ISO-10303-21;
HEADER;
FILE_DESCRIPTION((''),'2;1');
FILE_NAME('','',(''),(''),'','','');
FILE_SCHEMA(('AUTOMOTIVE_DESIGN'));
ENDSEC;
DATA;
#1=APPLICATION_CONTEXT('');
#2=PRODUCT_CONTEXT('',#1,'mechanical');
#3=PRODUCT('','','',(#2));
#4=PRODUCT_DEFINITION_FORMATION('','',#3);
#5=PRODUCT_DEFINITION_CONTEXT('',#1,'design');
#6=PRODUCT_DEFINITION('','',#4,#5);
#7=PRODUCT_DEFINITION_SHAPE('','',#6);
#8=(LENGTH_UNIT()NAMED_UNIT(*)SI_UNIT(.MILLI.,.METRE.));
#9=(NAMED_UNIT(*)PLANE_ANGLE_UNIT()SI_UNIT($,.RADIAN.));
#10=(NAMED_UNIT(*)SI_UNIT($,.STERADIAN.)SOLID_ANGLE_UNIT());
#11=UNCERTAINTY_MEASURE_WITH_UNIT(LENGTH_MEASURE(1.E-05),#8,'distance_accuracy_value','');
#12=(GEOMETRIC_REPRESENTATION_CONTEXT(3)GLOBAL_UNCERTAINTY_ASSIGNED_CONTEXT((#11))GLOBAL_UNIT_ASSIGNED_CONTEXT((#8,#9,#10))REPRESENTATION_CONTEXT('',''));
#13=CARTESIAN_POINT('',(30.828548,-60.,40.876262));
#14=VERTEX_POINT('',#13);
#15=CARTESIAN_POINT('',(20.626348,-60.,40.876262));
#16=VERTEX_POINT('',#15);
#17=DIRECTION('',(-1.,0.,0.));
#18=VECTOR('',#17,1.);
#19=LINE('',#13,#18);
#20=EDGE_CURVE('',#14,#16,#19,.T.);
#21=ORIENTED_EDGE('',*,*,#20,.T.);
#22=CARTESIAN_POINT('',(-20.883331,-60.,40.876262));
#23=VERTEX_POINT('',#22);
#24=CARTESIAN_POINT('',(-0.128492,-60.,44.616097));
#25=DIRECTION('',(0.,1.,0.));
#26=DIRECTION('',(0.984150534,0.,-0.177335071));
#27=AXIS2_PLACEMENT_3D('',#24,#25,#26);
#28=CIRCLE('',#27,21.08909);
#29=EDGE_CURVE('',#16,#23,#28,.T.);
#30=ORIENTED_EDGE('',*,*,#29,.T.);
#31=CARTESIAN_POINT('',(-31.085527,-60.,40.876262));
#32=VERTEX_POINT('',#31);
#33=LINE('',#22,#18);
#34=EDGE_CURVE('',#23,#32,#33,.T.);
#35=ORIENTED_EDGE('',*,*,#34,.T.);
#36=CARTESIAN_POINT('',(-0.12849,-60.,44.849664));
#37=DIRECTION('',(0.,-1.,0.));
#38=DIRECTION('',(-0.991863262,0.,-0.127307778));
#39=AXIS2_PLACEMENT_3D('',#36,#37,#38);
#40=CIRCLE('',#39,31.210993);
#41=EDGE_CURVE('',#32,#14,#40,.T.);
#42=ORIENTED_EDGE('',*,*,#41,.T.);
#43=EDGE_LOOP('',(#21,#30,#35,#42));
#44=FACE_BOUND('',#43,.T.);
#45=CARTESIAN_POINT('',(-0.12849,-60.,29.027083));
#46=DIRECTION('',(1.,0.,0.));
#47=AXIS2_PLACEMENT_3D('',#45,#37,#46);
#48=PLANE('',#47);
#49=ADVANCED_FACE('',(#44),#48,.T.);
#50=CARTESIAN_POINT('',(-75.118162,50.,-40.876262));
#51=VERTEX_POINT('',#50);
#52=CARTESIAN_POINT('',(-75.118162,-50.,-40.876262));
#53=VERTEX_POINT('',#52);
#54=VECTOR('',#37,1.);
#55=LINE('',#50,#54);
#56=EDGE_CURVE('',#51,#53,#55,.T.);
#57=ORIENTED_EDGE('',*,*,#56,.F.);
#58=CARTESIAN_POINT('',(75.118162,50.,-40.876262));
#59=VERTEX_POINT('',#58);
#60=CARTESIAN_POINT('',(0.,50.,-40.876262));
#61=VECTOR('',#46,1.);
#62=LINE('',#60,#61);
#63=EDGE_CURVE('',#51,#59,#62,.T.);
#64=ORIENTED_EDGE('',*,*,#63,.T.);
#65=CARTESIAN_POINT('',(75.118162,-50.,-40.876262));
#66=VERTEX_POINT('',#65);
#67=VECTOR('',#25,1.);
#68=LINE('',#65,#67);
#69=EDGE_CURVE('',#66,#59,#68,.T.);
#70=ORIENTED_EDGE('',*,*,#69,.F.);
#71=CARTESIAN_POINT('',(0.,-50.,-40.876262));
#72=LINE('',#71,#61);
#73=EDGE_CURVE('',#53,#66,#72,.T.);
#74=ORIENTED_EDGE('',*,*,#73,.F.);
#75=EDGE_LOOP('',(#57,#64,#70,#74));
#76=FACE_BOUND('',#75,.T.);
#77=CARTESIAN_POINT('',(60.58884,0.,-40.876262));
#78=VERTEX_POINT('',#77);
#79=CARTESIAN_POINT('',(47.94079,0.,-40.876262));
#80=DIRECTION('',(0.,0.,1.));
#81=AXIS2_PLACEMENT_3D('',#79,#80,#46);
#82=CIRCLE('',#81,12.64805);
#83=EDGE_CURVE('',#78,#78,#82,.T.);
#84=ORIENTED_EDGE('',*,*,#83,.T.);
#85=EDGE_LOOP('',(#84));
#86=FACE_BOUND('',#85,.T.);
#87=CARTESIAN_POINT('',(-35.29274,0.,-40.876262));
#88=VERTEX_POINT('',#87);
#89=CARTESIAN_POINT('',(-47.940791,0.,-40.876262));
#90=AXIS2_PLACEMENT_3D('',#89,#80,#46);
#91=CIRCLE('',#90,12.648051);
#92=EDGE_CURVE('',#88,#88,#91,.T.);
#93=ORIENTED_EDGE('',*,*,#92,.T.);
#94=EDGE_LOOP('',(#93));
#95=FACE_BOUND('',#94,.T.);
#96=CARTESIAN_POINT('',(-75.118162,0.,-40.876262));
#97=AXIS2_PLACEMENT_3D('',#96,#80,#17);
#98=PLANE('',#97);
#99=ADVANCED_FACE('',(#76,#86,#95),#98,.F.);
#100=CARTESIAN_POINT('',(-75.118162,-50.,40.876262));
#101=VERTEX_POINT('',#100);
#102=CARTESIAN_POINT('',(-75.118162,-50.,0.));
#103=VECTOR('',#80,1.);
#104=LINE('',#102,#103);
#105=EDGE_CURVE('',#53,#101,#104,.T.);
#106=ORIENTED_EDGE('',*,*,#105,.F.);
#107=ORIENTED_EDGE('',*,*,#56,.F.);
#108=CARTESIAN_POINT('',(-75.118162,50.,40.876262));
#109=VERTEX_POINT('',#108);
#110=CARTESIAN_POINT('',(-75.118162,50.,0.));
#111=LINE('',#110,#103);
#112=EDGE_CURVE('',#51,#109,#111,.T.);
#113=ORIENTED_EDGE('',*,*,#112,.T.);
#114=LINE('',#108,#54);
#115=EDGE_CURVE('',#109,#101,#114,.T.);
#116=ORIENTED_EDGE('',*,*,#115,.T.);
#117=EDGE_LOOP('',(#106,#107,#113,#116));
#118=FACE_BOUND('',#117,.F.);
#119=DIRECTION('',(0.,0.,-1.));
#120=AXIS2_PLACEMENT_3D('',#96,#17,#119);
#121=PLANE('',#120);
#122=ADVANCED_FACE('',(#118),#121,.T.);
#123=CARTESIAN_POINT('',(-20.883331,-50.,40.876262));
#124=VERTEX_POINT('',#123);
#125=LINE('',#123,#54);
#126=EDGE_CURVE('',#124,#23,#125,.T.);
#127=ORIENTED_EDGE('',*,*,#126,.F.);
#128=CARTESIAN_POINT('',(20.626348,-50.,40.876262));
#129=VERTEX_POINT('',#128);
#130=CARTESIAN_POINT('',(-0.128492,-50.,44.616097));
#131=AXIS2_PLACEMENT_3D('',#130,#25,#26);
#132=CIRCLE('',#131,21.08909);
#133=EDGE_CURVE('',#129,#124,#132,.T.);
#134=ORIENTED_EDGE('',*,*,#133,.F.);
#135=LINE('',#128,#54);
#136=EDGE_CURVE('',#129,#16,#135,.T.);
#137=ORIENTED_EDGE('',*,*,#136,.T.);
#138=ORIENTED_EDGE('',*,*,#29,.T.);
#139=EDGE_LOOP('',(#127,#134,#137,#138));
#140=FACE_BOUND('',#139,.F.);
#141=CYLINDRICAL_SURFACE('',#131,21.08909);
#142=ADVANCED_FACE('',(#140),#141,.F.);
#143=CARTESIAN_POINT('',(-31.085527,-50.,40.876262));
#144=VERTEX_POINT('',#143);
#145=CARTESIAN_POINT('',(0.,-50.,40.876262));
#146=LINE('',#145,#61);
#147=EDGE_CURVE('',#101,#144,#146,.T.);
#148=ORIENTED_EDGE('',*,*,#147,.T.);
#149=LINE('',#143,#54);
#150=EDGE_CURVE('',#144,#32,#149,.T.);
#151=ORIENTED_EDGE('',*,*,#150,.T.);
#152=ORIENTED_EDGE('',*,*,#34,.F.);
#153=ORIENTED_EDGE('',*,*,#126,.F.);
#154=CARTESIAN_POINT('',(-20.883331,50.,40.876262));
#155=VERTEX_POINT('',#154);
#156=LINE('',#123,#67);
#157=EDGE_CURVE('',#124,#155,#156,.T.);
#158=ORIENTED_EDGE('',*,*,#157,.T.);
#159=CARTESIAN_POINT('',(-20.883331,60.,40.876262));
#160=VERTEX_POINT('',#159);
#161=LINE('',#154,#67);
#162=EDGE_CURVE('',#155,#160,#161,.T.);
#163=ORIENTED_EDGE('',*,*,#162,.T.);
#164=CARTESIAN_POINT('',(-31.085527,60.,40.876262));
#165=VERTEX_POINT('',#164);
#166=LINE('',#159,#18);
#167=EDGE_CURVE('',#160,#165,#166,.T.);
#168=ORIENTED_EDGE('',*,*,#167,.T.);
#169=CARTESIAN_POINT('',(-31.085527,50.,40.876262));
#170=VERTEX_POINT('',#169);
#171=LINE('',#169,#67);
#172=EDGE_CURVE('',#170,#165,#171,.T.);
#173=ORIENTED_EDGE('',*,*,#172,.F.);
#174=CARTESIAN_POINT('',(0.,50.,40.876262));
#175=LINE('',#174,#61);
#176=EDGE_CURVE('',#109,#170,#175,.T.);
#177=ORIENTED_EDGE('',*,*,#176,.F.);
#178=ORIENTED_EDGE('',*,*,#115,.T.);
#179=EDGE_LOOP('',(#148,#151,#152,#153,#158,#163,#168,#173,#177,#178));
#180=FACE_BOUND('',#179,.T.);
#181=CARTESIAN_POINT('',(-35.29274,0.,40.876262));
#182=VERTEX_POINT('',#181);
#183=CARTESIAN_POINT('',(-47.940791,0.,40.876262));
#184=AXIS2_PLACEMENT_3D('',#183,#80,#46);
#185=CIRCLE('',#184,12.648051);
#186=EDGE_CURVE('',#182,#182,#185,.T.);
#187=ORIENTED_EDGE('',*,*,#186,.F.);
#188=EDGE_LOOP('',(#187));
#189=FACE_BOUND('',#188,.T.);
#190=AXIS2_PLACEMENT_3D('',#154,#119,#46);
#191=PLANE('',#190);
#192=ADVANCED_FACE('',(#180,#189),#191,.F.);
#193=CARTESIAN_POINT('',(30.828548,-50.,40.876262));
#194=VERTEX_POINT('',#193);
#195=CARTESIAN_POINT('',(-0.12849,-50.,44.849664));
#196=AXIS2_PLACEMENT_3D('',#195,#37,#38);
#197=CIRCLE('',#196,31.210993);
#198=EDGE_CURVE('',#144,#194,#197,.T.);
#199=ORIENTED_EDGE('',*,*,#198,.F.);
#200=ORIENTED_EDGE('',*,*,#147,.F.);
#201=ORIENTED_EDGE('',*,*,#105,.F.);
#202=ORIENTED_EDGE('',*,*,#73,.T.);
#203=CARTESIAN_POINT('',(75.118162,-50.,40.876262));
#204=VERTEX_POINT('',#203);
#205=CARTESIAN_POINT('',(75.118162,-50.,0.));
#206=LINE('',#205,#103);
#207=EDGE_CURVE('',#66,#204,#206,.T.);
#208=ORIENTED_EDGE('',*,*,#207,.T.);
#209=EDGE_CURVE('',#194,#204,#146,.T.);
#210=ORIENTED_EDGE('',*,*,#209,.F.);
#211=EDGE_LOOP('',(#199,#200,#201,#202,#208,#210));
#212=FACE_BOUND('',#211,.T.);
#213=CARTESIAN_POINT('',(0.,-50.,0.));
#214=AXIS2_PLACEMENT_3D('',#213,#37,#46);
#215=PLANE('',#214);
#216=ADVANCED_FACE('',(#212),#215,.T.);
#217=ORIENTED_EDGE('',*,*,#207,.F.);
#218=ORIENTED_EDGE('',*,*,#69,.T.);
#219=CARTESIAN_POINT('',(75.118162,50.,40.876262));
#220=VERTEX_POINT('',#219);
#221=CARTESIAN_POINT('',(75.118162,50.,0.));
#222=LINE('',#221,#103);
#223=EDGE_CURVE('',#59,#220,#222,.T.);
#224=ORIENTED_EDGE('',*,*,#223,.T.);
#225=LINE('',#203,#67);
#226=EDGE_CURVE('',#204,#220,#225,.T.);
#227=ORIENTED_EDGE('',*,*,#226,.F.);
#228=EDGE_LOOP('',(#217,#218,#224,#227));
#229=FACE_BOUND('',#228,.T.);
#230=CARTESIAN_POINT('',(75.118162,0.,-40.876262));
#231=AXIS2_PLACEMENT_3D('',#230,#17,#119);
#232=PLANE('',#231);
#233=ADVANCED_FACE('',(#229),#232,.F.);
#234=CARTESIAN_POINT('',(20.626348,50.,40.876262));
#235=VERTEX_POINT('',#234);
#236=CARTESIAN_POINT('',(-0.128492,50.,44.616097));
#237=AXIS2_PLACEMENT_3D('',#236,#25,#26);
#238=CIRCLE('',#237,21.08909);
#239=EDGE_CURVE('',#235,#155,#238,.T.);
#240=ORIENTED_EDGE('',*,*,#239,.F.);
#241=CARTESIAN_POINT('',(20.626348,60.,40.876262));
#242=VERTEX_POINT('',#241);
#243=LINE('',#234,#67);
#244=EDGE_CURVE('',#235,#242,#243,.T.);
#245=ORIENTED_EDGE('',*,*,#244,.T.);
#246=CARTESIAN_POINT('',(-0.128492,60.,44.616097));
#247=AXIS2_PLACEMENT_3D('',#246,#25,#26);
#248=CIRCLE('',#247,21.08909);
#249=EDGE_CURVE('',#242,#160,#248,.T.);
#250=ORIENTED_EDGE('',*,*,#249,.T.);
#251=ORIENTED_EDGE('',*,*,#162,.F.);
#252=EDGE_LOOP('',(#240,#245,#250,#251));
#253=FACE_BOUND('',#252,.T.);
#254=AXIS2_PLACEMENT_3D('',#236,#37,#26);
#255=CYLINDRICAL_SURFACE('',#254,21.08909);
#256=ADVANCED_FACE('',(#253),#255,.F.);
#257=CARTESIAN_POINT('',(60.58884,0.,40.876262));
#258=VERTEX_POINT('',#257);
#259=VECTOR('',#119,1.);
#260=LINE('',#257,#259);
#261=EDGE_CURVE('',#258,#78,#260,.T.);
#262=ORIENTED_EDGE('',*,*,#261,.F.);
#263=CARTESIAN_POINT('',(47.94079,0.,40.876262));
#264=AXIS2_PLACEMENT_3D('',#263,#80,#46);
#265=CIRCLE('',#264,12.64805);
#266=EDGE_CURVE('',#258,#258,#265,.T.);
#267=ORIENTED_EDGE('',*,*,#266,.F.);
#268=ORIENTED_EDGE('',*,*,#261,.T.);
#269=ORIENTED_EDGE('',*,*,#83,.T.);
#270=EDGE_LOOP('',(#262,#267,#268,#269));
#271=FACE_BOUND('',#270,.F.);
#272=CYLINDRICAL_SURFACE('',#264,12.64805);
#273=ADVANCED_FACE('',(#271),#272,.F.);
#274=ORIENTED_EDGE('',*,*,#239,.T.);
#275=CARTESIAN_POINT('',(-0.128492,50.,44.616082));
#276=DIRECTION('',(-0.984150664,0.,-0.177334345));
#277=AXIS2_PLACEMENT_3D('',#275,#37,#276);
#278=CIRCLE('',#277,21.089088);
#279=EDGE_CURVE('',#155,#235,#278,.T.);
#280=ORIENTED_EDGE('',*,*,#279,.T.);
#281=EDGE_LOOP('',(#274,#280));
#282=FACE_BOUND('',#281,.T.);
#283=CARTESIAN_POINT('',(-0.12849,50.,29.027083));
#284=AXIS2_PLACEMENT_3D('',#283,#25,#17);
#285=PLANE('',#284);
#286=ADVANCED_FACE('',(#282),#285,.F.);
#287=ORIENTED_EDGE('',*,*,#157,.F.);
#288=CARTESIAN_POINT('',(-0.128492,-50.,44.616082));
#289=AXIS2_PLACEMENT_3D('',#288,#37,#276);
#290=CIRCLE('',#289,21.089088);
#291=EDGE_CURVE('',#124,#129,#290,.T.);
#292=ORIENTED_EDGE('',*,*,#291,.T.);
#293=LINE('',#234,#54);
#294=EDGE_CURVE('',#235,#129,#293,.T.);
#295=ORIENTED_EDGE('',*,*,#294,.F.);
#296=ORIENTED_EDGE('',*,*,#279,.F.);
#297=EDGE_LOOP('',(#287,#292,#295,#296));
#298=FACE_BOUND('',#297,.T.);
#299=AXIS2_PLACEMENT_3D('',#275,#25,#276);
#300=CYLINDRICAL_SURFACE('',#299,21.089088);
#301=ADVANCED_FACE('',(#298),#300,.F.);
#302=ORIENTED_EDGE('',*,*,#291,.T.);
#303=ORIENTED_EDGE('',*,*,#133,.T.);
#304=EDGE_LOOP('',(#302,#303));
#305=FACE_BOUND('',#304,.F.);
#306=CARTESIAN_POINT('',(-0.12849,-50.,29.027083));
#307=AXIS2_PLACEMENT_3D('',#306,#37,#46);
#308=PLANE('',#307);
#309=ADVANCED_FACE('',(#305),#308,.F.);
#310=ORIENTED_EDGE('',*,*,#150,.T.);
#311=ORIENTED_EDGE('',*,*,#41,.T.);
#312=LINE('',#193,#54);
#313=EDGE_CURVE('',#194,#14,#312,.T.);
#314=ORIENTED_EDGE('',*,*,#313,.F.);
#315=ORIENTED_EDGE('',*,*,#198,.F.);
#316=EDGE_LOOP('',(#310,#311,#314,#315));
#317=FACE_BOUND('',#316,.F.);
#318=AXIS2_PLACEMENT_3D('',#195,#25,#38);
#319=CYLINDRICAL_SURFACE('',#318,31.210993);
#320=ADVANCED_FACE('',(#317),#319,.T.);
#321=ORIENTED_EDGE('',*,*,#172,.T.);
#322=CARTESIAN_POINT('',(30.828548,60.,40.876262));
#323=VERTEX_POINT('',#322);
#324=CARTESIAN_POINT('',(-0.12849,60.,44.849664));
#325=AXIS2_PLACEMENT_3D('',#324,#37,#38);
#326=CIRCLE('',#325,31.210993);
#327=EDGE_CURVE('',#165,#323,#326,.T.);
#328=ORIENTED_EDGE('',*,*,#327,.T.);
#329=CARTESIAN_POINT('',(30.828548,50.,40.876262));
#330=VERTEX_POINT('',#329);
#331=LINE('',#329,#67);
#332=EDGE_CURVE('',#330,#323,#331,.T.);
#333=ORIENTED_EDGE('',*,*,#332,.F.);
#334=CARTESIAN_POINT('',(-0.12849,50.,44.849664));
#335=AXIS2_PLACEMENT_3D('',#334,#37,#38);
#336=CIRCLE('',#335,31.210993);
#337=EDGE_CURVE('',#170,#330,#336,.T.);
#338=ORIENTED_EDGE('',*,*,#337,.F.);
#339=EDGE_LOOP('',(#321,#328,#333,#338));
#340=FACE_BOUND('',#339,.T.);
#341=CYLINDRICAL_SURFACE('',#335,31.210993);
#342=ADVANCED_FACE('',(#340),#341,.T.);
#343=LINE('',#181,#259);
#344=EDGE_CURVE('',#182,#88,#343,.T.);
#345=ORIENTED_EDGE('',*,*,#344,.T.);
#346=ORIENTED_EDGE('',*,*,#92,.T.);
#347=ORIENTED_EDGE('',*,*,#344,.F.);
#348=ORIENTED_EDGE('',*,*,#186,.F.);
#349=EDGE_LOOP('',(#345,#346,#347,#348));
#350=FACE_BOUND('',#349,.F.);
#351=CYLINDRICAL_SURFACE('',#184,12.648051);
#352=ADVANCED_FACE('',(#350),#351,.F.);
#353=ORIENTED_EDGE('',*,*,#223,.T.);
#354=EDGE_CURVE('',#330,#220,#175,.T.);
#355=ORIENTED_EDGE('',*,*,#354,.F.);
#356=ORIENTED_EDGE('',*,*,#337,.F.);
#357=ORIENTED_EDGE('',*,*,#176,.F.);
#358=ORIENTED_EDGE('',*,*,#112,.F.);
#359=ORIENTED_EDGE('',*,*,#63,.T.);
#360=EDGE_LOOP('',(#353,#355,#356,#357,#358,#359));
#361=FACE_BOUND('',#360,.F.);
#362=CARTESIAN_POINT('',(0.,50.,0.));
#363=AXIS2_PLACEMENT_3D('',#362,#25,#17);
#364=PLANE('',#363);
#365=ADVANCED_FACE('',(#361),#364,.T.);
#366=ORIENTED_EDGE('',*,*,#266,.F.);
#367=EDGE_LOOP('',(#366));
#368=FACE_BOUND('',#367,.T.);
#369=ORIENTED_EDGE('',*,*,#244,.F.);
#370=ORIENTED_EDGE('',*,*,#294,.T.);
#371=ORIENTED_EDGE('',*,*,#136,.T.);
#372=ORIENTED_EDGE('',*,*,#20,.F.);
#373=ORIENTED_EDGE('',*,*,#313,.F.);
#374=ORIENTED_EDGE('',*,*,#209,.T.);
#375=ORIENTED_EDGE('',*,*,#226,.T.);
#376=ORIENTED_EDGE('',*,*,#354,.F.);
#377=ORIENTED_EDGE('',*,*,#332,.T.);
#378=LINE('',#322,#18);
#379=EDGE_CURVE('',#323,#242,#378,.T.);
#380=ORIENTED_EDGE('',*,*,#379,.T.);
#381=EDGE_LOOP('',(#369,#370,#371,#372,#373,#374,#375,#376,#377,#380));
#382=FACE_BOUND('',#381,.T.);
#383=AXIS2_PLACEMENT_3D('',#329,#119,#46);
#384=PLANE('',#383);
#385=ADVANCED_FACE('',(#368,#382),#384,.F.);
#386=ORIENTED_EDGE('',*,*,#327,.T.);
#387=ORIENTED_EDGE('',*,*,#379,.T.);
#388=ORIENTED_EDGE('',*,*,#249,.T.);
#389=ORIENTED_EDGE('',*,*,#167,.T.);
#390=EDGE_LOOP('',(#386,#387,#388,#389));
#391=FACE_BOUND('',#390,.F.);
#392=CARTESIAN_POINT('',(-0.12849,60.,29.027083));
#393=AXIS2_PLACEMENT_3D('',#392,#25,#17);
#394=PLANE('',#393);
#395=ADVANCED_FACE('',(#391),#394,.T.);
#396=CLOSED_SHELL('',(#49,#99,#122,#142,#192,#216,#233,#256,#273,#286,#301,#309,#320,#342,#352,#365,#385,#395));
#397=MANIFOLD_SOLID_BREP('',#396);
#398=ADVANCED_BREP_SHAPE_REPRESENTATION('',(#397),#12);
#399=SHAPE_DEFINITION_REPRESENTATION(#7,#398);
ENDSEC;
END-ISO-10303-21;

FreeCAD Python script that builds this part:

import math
import FreeCAD as App
import Part
import Sketcher

V = App.Vector
Q = App.Units.Quantity

doc = App.newDocument("Part")
body = doc.addObject("PartDesign::Body", "Body")

# Sketch on XZ plane
sketch1 = doc.addObject("Sketcher::SketchObject", "Sketch")
body.addObject(sketch1)
sketch1.AttachmentSupport = (doc.XZ_Plane, [""])
sketch1.MapMode = "FlatFace"
sketch1.addGeometry(Part.LineSegment(V(-75.118162, 40.876262, 0), V(-75.118162, -40.876262, 0)), False)
sketch1.addGeometry(Part.LineSegment(V(-75.118162, -40.876262, 0), V(75.118162, -40.876262, 0)), False)
sketch1.addGeometry(Part.LineSegment(V(75.118162, -40.876262, 0), V(75.118162, 40.876262, 0)), False)
sketch1.addGeometry(Part.LineSegment(V(75.118162, 40.876262, 0), V(-75.118162, 40.876262, 0)), False)
sketch1.addConstraint(Sketcher.Constraint("Coincident", 0, 2, 1, 1))
sketch1.addConstraint(Sketcher.Constraint("Coincident", 1, 2, 2, 1))
sketch1.addConstraint(Sketcher.Constraint("Coincident", 2, 2, 3, 1))
sketch1.addConstraint(Sketcher.Constraint("Coincident", 3, 2, 0, 1))
sketch1.addConstraint(Sketcher.Constraint("Vertical", 0))
sketch1.addConstraint(Sketcher.Constraint("Horizontal", 1))
sketch1.addConstraint(Sketcher.Constraint("Vertical", 2))
sketch1.addConstraint(Sketcher.Constraint("Horizontal", 3))
sketch1.addConstraint(Sketcher.Constraint("Symmetric", 0, 2, 2, 2, -1, 1))
sketch1.addConstraint(Sketcher.Constraint("DistanceX", 1, 1, 1, 2, Q("150.236324 mm")))
sketch1.addConstraint(Sketcher.Constraint("DistanceY", 0, 2, 0, 1, Q("81.752524 mm")))
pad1 = doc.addObject("PartDesign::Pad", "Pad")
body.addObject(pad1)
pad1.Profile = sketch1
pad1.Length = 50

# Sketch on XZ plane
sketch2 = doc.addObject("Sketcher::SketchObject", "Sketch001")
body.addObject(sketch2)
sketch2.AttachmentSupport = (doc.XZ_Plane, [""])
sketch2.MapMode = "FlatFace"
sketch2.AttachmentOffset = App.Placement(V(0, 0, 50), App.Rotation())
sketch2.addGeometry(Part.LineSegment(V(20.626348, 40.876262, 0), V(-20.883331, 40.876262, 0)), False)
sketch2.addGeometry(Part.ArcOfCircle(Part.Circle(V(-0.128492, 44.616082, 0), V(0, 0, 1), 21.089088), math.radians(-169.785469), math.radians(-10.214531)), False)
sketch2.addConstraint(Sketcher.Constraint("Coincident", 0, 1, 1, 2))
sketch2.addConstraint(Sketcher.Constraint("Coincident", 1, 1, 0, 2))
sketch2.addConstraint(Sketcher.Constraint("Horizontal", 0))
sketch2.addConstraint(Sketcher.Constraint("Radius", 1, Q("21.089088 mm")))
sketch2.addConstraint(Sketcher.Constraint("DistanceX", 0, 2, 0, 1, Q("41.509679 mm")))
sketch2.addConstraint(Sketcher.Constraint("DistanceX", 1, 3, -1, 1, Q("0.128492 mm")))
sketch2.addConstraint(Sketcher.Constraint("DistanceY", -1, 1, 1, 3, Q("44.616082 mm")))
pocket1 = doc.addObject("PartDesign::Pocket", "Pocket")
body.addObject(pocket1)
pocket1.Profile = sketch2
pocket1.Length = 166

# Sketch on XZ plane
sketch3 = doc.addObject("Sketcher::SketchObject", "Sketch002")
body.addObject(sketch3)
sketch3.AttachmentSupport = (doc.XZ_Plane, [""])
sketch3.MapMode = "FlatFace"
sketch3.AttachmentOffset = App.Placement(V(0, 0, 50), App.Rotation())
sketch3.addGeometry(Part.ArcOfCircle(Part.Circle(V(-0.128492, 44.616097, 0), V(0, 0, 1), 21.08909), math.radians(-169.785426), math.radians(-10.214574)), False)
sketch3.addGeometry(Part.LineSegment(V(-20.883331, 40.876262, 0), V(-31.085527, 40.876262, 0)), False)
sketch3.addGeometry(Part.ArcOfCircle(Part.Circle(V(-0.12849, 44.849664, 0), V(0, 0, 1), 31.210993), math.radians(-172.685953), math.radians(-7.314047)), False)
sketch3.addGeometry(Part.LineSegment(V(30.828548, 40.876262, 0), V(20.626348, 40.876262, 0)), False)
sketch3.addConstraint(Sketcher.Constraint("Coincident", 0, 1, 1, 1))
sketch3.addConstraint(Sketcher.Constraint("Coincident", 1, 2, 2, 1))
sketch3.addConstraint(Sketcher.Constraint("Coincident", 2, 2, 3, 1))
sketch3.addConstraint(Sketcher.Constraint("Coincident", 3, 2, 0, 2))
sketch3.addConstraint(Sketcher.Constraint("Horizontal", 1))
sketch3.addConstraint(Sketcher.Constraint("Horizontal", 3))
sketch3.addConstraint(Sketcher.Constraint("Horizontal", 1, 2, 2, 2))
sketch3.addConstraint(Sketcher.Constraint("Radius", 0, Q("21.08909 mm")))
sketch3.addConstraint(Sketcher.Constraint("DistanceX", 3, 2, 3, 1, Q("10.2022 mm")))
sketch3.addConstraint(Sketcher.Constraint("Radius", 2, Q("31.210993 mm")))
sketch3.addConstraint(Sketcher.Constraint("DistanceX", 1, 2, 1, 1, Q("10.202196 mm")))
sketch3.addConstraint(Sketcher.Constraint("DistanceX", 0, 3, -1, 1, Q("0.128492 mm")))
sketch3.addConstraint(Sketcher.Constraint("DistanceX", 0, 1, -1, 1, Q("20.883331 mm")))
sketch3.addConstraint(Sketcher.Constraint("DistanceY", -1, 1, 0, 1, Q("40.876262 mm")))
pad2 = doc.addObject("PartDesign::Pad", "Pad001")
body.addObject(pad2)
pad2.Profile = sketch3
pad2.Length = 10
body2 = doc.addObject("PartDesign::Body", "Body001")
doc.recompute()

body2.BaseFeature = body
doc.recompute()

mirroring = doc.addObject("Part::Mirroring", "Mirroring")
mirroring.Source = body
mirroring.Base = V(0.005929, 0, -1.550904)
mirroring.Normal = V(0, 1, 0)
body3 = doc.addObject("PartDesign::Body", "Body002")
body3.BaseFeature = mirroring
boolean = doc.addObject("PartDesign::Boolean", "Boolean")
body2.addObject(boolean)
boolean.Type = "Fuse"
boolean.addObjects([body3])
doc.recompute()

# Sketch on XY plane
sketch4 = doc.addObject("Sketcher::SketchObject", "Sketch003")
body2.addObject(sketch4)
sketch4.AttachmentSupport = (doc.getObject("XY_Plane001"), [""])
sketch4.MapMode = "FlatFace"
sketch4.AttachmentOffset = App.Placement(V(0, 0, 40.876262), App.Rotation())
sketch4.addGeometry(Part.Circle(V(-47.940791, 0, 0), V(0, 0, 1), 12.648051), False)
sketch4.addGeometry(Part.Circle(V(47.94079, 0, 0), V(0, 0, 1), 12.64805), False)
sketch4.addConstraint(Sketcher.Constraint("Equal", 0, 1))
sketch4.addConstraint(Sketcher.Constraint("Symmetric", 0, 3, 1, 3, -1, 1))
sketch4.addConstraint(Sketcher.Constraint("PointOnObject", 0, 3, -1))
sketch4.addConstraint(Sketcher.Constraint("Diameter", 1, Q("25.2961 mm")))
sketch4.addConstraint(Sketcher.Constraint("DistanceX", 0, 3, -1, 1, Q("47.940791 mm")))
pocket2 = doc.addObject("PartDesign::Pocket", "Pocket001")
body2.addObject(pocket2)
pocket2.Profile = sketch4
pocket2.Length = 89.9
mirroring.Visibility = False

doc.recompute()
